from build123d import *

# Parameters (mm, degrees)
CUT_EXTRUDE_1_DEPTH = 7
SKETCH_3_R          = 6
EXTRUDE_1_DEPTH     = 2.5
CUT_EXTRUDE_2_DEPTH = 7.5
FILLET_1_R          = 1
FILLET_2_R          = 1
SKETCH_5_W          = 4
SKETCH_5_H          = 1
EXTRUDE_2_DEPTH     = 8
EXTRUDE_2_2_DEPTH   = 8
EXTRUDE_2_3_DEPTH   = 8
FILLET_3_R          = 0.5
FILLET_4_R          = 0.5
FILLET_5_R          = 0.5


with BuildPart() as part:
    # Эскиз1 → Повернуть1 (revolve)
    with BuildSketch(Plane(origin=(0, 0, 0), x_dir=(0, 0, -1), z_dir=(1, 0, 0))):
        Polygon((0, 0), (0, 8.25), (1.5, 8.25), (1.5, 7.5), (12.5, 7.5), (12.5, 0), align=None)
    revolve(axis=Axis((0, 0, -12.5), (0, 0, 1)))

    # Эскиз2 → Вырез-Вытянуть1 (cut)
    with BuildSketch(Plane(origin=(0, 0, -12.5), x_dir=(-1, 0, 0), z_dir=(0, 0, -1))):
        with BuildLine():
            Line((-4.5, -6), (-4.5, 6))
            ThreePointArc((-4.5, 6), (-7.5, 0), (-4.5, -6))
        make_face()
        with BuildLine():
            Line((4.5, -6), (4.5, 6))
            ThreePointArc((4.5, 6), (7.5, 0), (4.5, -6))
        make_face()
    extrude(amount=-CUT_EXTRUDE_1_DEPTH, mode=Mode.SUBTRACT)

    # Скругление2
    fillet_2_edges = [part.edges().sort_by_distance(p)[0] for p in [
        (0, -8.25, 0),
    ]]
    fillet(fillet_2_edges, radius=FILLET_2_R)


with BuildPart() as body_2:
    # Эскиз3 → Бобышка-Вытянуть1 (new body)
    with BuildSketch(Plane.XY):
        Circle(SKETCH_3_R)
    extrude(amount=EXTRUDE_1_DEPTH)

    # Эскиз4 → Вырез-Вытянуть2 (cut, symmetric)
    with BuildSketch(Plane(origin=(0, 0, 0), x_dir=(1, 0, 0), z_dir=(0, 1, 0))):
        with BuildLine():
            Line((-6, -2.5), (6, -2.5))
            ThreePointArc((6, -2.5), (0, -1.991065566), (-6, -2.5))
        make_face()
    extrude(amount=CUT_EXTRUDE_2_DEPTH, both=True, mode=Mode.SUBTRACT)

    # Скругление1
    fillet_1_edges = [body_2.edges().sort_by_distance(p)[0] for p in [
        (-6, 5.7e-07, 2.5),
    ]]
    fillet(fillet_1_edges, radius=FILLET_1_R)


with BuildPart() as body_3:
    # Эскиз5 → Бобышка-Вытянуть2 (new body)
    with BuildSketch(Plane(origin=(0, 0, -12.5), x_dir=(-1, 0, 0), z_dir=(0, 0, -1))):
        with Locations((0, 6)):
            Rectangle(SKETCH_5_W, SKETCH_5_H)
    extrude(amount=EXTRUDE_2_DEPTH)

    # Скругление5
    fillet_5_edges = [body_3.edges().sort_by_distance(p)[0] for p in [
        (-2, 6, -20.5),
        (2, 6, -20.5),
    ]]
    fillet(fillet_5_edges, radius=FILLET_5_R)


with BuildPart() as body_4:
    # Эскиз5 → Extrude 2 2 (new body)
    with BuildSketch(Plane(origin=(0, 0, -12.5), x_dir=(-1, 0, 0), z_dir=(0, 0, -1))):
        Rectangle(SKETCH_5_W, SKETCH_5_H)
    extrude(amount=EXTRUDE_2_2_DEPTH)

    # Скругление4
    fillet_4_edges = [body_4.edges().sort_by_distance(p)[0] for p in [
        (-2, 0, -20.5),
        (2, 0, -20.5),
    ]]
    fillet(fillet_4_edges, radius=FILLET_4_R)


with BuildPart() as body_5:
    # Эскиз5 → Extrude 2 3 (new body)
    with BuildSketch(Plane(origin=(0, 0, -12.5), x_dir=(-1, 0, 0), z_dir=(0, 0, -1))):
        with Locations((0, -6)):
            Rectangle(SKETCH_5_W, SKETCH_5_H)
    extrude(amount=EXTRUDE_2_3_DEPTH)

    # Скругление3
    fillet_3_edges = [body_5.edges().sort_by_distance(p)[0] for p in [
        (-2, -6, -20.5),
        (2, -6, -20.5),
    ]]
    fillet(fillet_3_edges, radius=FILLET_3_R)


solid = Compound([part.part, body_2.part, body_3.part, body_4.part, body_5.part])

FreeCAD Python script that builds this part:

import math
import FreeCAD as App
import Part
import Sketcher


def edges_at(feature, points):
    """Names of the edges that pass closest to the given points."""
    edges = feature.Shape.Edges
    near = lambda p: min(range(len(edges)), key=lambda i: edges[i].distToShape(Part.Vertex(*p))[0])
    return sorted({f"Edge{near(p) + 1}" for p in points})


def add_polygon(sketch, points):
    """Adds a closed chain of lines whose ends are joined by coincident constraints."""
    first, n = sketch.GeometryCount, len(points)
    for a, b in zip(points, points[1:] + points[:1]):
        sketch.addGeometry(Part.LineSegment(App.Vector(*a, 0), App.Vector(*b, 0)), False)
    for i in range(n):
        sketch.addConstraint(Sketcher.Constraint("Coincident", first + i, 2, first + (i + 1) % n, 1))

doc = App.newDocument("Part")
body = doc.addObject("PartDesign::Body", "Body")

sketch1 = body.newObject("Sketcher::SketchObject", "Sketch")
sketch1.AttachmentSupport = (doc.getObject("YZ_Plane"), [""])
sketch1.MapMode = "FlatFace"
add_polygon(sketch1, [(8.2, 0), (0, 0), (0, -12.5), (7.5, -12.5), (7.5, -1.5), (8.2, -1.5)])
sketch1.addConstraint([
    Sketcher.Constraint("Horizontal", 0),
    Sketcher.Constraint("Vertical", 1),
    Sketcher.Constraint("Horizontal", 2),
    Sketcher.Constraint("Vertical", 3),
    Sketcher.Constraint("Horizontal", 4),
    Sketcher.Constraint("Vertical", 5),
    Sketcher.Constraint("Coincident", 0, 2, -1, 1),
    Sketcher.Constraint("DistanceY", 3, 1, 3, 2, 11.0),
    Sketcher.Constraint("DistanceX", 2, 1, 2, 2, 7.5),
    Sketcher.Constraint("DistanceY", 1, 2, 1, 1, 12.5),
    Sketcher.Constraint("DistanceX", 0, 2, 0, 1, 8.25),
])
revolution = body.newObject("PartDesign::Revolution", "Revolution")
revolution.Profile = sketch1
revolution.ReferenceAxis = (sketch1, ["V_Axis"])
revolution.Angle = 360

sketch2 = body.newObject("Sketcher::SketchObject", "Sketch001")
sketch2.AttachmentSupport = (doc.getObject("XY_Plane"), [""])
sketch2.MapMode = "FlatFace"
sketch2.AttachmentOffset = App.Placement(App.Vector(0, 0, -12.5), App.Rotation())
sketch2.addGeometry([
    Part.LineSegment(App.Vector(4, -6, 0), App.Vector(4, 6, 0)),
    Part.ArcOfCircle(Part.Circle(App.Vector(0, 0, 0), App.Vector(0, 0, 1), 8), math.radians(-53), math.radians(53)),
    Part.LineSegment(App.Vector(-4, 6, 0), App.Vector(-4, -6, 0)),
    Part.ArcOfCircle(Part.Circle(App.Vector(0, 0, 0), App.Vector(0, 0, 1), 8), math.radians(127), math.radians(233)),
], False)
sketch2.addConstraint([
    Sketcher.Constraint("Coincident", 0, 1, 1, 1),
    Sketcher.Constraint("Coincident", 1, 2, 0, 2),
    Sketcher.Constraint("Coincident", 2, 1, 3, 1),
    Sketcher.Constraint("Coincident", 3, 2, 2, 2),
    Sketcher.Constraint("Vertical", 0),
    Sketcher.Constraint("Vertical", 2),
    Sketcher.Constraint("Coincident", 1, 3, -1, 1),
    Sketcher.Constraint("Coincident", 3, 3, -1, 1),
    Sketcher.Constraint("Equal", 1, 3),
    Sketcher.Constraint("Horizontal", 1, 2, 2, 1),
    Sketcher.Constraint("Radius", 1, 7.5),
    Sketcher.Constraint("DistanceY", 0, 1, 0, 2, 12.0),
])
pocket1 = body.newObject("PartDesign::Pocket", "Pocket")
pocket1.Profile = sketch2
pocket1.Length = 7
pocket1.Reversed = True
doc.recompute()

fillet = body.newObject("PartDesign::Fillet", "Fillet")
fillet.Base = (pocket1, edges_at(pocket1, [(0, -8.25, 0)]))
fillet.Radius = 1
body2 = doc.addObject("PartDesign::Body", "Body001")

sketch3 = body2.newObject("Sketcher::SketchObject", "Sketch002")
sketch3.AttachmentSupport = (doc.getObject("XY_Plane001"), [""])
sketch3.MapMode = "FlatFace"
sketch3.addGeometry(Part.Circle(App.Vector(0, 0, 0), App.Vector(0, 0, 1), 6), False)
sketch3.addConstraint([
    Sketcher.Constraint("Coincident", 0, 3, -1, 1),
    Sketcher.Constraint("Diameter", 0, 12.0),
])
pad1 = body2.newObject("PartDesign::Pad", "Pad")
pad1.Profile = sketch3
pad1.Length = 2.5

sketch4 = body2.newObject("Sketcher::SketchObject", "Sketch003")
sketch4.AttachmentSupport = (doc.getObject("XZ_Plane001"), [""])
sketch4.MapMode = "FlatFace"
sketch4.addGeometry([
    Part.LineSegment(App.Vector(-6, 2, 0), App.Vector(6, 2, 0)),
    Part.ArcOfCircle(Part.Circle(App.Vector(0, 38, 0), App.Vector(0, 0, 1), 36), math.radians(-99.7), math.radians(-80.3)),
], False)
sketch4.addConstraint([
    Sketcher.Constraint("Coincident", 0, 1, 1, 1),
    Sketcher.Constraint("Coincident", 1, 2, 0, 2),
    Sketcher.Constraint("Horizontal", 0),
    Sketcher.Constraint("PointOnObject", 1, 3, -2),
    Sketcher.Constraint("DistanceX", 0, 1, 0, 2, 12.0),
    Sketcher.Constraint("DistanceY", -1, 1, 0, 1, 2.5),
    Sketcher.Constraint("Radius", 1, 35.622481),
])
pocket2 = body2.newObject("PartDesign::Pocket", "Pocket001")
pocket2.Profile = sketch4
pocket2.Length = 15
pocket2.Midplane = True
doc.recompute()

fillet2 = body2.newObject("PartDesign::Fillet", "Fillet001")
fillet2.Base = (pocket2, edges_at(pocket2, [(-6, 0, 2.5)]))
fillet2.Radius = 1
body3 = doc.addObject("PartDesign::Body", "Body002")

sketch5 = body3.newObject("Sketcher::SketchObject", "Sketch004")
sketch5.AttachmentSupport = (doc.getObject("XY_Plane002"), [""])
sketch5.MapMode = "FlatFace"
sketch5.AttachmentOffset = App.Placement(App.Vector(0, 0, -12.5), App.Rotation())
add_polygon(sketch5, [(2, 6.5), (2, 5.5), (-2, 5.5), (-2, 6.5)])
sketch5.addConstraint([
    Sketcher.Constraint("Vertical", 0),
    Sketcher.Constraint("Horizontal", 1),
    Sketcher.Constraint("Vertical", 2),
    Sketcher.Constraint("Horizontal", 3),
    Sketcher.Constraint("DistanceX", 1, 2, 1, 1, 4.0),
    Sketcher.Constraint("DistanceY", 0, 2, 0, 1, 1.0),
    Sketcher.Constraint("DistanceX", -1, 1, 0, 2, 2.0),
    Sketcher.Constraint("DistanceY", -1, 1, 0, 2, 5.5),
])
pad2 = body3.newObject("PartDesign::Pad", "Pad001")
pad2.Profile = sketch5
pad2.Length = 8
pad2.Reversed = True
doc.recompute()

fillet3 = body3.newObject("PartDesign::Fillet", "Fillet002")
fillet3.Base = (pad2, edges_at(pad2, [(-2, 6, -20.5), (2, 6, -20.5)]))
fillet3.Radius = 0.5
body4 = doc.addObject("PartDesign::Body", "Body003")

sketch6 = body4.newObject("Sketcher::SketchObject", "Sketch005")
sketch6.AttachmentSupport = (doc.getObject("XY_Plane003"), [""])
sketch6.MapMode = "FlatFace"
sketch6.AttachmentOffset = App.Placement(App.Vector(0, 0, -12.5), App.Rotation())
add_polygon(sketch6, [(2, 0.5), (2, -0.5), (-2, -0.5), (-2, 0.5)])
sketch6.addConstraint([
    Sketcher.Constraint("Vertical", 0),
    Sketcher.Constraint("Horizontal", 1),
    Sketcher.Constraint("Vertical", 2),
    Sketcher.Constraint("Horizontal", 3),
    Sketcher.Constraint("Symmetric", 0, 2, 2, 2, -1, 1),
    Sketcher.Constraint("DistanceX", 1, 2, 1, 1, 4.0),
    Sketcher.Constraint("DistanceY", 0, 2, 0, 1, 1.0),
])
pad3 = body4.newObject("PartDesign::Pad", "Pad002")
pad3.Profile = sketch6
pad3.Length = 8
pad3.Reversed = True
doc.recompute()

fillet4 = body4.newObject("PartDesign::Fillet", "Fillet003")
fillet4.Base = (pad3, edges_at(pad3, [(-2, 0, -20.5), (2, 0, -20.5)]))
fillet4.Radius = 0.5
body5 = doc.addObject("PartDesign::Body", "Body004")

sketch7 = body5.newObject("Sketcher::SketchObject", "Sketch006")
sketch7.AttachmentSupport = (doc.getObject("XY_Plane004"), [""])
sketch7.MapMode = "FlatFace"
sketch7.AttachmentOffset = App.Placement(App.Vector(0, 0, -12.5), App.Rotation())
add_polygon(sketch7, [(2, -5.5), (2, -6.5), (-2, -6.5), (-2, -5.5)])
sketch7.addConstraint([
    Sketcher.Constraint("Vertical", 0),
    Sketcher.Constraint("Horizontal", 1),
    Sketcher.Constraint("Vertical", 2),
    Sketcher.Constraint("Horizontal", 3),
    Sketcher.Constraint("DistanceX", 1, 2, 1, 1, 4.0),
    Sketcher.Constraint("DistanceY", 0, 2, 0, 1, 1.0),
    Sketcher.Constraint("DistanceX", -1, 1, 0, 2, 2.0),
    Sketcher.Constraint("DistanceY", 0, 2, -1, 1, 6.5),
])
pad4 = body5.newObject("PartDesign::Pad", "Pad003")
pad4.Profile = sketch7
pad4.Length = 8
pad4.Reversed = True
doc.recompute()

fillet5 = body5.newObject("PartDesign::Fillet", "Fillet004")
fillet5.Base = (pad4, edges_at(pad4, [(-2, -6, -20.5), (2, -6, -20.5)]))
fillet5.Radius = 0.5

doc.recompute()
